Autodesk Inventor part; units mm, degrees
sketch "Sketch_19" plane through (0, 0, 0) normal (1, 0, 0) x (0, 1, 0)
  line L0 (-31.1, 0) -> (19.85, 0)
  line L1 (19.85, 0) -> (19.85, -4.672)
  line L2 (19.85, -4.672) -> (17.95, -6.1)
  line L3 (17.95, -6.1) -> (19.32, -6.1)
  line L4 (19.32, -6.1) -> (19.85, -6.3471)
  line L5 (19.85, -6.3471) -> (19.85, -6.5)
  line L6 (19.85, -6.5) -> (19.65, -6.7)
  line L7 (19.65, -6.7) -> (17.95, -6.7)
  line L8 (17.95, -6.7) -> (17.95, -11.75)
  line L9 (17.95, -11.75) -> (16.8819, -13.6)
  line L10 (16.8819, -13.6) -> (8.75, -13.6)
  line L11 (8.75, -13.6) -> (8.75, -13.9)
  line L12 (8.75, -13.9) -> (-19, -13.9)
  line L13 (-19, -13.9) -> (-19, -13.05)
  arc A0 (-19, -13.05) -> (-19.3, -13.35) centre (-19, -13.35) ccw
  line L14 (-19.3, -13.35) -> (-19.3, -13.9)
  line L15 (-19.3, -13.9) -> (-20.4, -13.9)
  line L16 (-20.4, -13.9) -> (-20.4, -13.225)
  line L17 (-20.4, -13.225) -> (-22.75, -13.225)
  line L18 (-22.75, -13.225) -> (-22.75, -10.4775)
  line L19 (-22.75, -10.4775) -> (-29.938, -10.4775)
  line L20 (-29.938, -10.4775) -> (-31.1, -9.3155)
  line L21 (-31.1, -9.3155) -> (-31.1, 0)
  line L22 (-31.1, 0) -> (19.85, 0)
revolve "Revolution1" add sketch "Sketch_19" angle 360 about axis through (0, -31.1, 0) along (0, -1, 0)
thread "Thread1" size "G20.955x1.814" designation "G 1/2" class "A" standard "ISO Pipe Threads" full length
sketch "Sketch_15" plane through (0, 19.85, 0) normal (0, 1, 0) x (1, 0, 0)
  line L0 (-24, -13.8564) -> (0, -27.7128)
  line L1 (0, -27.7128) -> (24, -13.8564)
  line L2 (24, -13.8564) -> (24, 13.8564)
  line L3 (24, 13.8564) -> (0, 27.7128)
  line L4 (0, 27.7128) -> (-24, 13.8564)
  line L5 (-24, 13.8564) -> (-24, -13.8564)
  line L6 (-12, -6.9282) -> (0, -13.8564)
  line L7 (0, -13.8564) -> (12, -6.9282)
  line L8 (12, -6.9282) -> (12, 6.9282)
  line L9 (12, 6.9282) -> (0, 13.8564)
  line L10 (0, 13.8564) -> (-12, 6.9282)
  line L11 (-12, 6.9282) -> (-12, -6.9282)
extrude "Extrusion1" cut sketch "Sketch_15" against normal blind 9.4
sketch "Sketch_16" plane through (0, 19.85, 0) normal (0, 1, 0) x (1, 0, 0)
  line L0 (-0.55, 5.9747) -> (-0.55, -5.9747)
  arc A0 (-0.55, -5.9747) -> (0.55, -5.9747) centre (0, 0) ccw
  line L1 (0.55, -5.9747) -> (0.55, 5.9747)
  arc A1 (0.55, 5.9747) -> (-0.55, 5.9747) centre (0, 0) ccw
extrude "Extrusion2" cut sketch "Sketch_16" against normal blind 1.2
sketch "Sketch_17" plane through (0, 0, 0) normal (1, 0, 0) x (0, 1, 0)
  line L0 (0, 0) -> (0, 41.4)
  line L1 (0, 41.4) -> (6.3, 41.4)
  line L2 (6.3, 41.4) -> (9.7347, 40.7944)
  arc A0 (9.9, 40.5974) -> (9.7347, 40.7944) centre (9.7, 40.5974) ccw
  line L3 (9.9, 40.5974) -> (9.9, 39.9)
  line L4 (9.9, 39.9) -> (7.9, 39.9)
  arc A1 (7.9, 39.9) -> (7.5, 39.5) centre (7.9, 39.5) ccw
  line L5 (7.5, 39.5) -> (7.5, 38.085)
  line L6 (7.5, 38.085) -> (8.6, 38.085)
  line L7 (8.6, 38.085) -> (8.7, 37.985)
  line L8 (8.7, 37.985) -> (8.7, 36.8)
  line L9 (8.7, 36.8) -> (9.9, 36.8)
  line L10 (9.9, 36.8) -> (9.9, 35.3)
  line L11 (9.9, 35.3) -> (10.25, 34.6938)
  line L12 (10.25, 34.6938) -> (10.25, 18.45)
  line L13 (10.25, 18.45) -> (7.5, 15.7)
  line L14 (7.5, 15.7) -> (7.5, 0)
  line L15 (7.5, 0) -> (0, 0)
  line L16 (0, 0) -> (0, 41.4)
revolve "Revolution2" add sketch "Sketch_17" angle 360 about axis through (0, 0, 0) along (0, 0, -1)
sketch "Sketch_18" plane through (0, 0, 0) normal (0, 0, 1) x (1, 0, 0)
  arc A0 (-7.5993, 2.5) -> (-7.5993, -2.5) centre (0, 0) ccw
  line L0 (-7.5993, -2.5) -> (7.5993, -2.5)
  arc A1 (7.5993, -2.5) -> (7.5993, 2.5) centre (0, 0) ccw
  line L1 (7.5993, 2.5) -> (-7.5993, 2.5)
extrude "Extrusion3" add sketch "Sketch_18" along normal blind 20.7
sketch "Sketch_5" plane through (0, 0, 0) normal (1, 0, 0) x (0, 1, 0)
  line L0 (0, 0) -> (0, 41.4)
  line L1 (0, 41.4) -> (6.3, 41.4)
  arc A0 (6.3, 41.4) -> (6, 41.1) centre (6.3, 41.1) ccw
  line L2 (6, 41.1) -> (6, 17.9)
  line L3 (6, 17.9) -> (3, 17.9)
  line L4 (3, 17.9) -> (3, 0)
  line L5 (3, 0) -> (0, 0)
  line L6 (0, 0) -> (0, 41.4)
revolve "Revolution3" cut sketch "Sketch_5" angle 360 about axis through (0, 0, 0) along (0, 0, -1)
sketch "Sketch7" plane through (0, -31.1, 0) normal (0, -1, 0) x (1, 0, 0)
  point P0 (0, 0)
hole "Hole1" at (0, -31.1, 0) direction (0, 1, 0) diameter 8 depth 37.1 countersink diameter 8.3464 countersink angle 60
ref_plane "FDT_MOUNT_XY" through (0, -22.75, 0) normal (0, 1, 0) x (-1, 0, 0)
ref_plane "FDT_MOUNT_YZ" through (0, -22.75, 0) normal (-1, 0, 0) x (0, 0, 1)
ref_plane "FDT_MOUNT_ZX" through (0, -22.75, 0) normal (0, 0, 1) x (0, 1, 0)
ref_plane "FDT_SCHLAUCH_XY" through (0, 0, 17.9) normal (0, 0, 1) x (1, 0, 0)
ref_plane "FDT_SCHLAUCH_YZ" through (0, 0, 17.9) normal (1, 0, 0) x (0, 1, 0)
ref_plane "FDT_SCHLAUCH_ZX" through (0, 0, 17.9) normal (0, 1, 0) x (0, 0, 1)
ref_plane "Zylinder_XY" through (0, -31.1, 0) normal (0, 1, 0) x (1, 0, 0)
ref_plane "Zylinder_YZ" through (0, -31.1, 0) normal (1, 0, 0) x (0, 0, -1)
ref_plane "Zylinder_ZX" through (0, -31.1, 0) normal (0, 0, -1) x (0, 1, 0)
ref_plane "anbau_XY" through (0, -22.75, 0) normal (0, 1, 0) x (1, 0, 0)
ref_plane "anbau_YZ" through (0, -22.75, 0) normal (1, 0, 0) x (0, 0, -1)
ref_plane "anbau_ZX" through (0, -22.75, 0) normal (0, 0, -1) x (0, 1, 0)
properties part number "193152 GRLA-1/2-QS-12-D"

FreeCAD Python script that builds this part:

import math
import FreeCAD as App
import Part
import Sketcher
from FreeCAD import Vector
Q = App.Units.Quantity

doc = App.newDocument("Part")
body = doc.addObject("PartDesign::Body", "Body")

sketch1 = body.newObject("Sketcher::SketchObject", "Sketch")
sketch1.AttachmentSupport = (doc.getObject("YZ_Plane"), [""])
sketch1.MapMode = "FlatFace"
sketch1.addGeometry([
    Part.LineSegment(Vector(19.85, 0, 0), Vector(-31.1, 0, 0)),
    Part.LineSegment(Vector(-31.1, 0, 0), Vector(-31.1, -9.32, 0)),
    Part.LineSegment(Vector(-31.1, -9.32, 0), Vector(-29.94, -10.48, 0)),
    Part.LineSegment(Vector(-29.94, -10.48, 0), Vector(-22.75, -10.48, 0)),
    Part.LineSegment(Vector(-22.75, -10.48, 0), Vector(-22.75, -13.22, 0)),
    Part.LineSegment(Vector(-22.75, -13.22, 0), Vector(-20.4, -13.22, 0)),
    Part.LineSegment(Vector(-20.4, -13.22, 0), Vector(-20.4, -13.9, 0)),
    Part.LineSegment(Vector(-20.4, -13.9, 0), Vector(-19.3, -13.9, 0)),
    Part.LineSegment(Vector(-19.3, -13.9, 0), Vector(-19.3, -13.35, 0)),
    Part.ArcOfCircle(Part.Circle(Vector(-19, -13.35, 0), Vector(0, 0, 1), 0.3), math.radians(90), math.radians(180)),
    Part.LineSegment(Vector(-19, -13.05, 0), Vector(-19, -13.9, 0)),
    Part.LineSegment(Vector(-19, -13.9, 0), Vector(8.75, -13.9, 0)),
    Part.LineSegment(Vector(8.75, -13.9, 0), Vector(8.75, -13.6, 0)),
    Part.LineSegment(Vector(8.75, -13.6, 0), Vector(16.88, -13.6, 0)),
    Part.LineSegment(Vector(16.88, -13.6, 0), Vector(17.95, -11.75, 0)),
    Part.LineSegment(Vector(17.95, -11.75, 0), Vector(17.95, -6.7, 0)),
    Part.LineSegment(Vector(17.95, -6.7, 0), Vector(19.65, -6.7, 0)),
    Part.LineSegment(Vector(19.65, -6.7, 0), Vector(19.85, -6.5, 0)),
    Part.LineSegment(Vector(19.85, -6.5, 0), Vector(19.85, -6.35, 0)),
    Part.LineSegment(Vector(19.85, -6.35, 0), Vector(19.32, -6.1, 0)),
    Part.LineSegment(Vector(19.32, -6.1, 0), Vector(17.95, -6.1, 0)),
    Part.LineSegment(Vector(17.95, -6.1, 0), Vector(19.85, -4.67, 0)),
    Part.LineSegment(Vector(19.85, -4.67, 0), Vector(19.85, 0, 0)),
], False)
sketch1.addConstraint([
    Sketcher.Constraint("Coincident", 0, 2, 1, 1),
    Sketcher.Constraint("Coincident", 1, 2, 2, 1),
    Sketcher.Constraint("Coincident", 2, 2, 3, 1),
    Sketcher.Constraint("Coincident", 3, 2, 4, 1),
    Sketcher.Constraint("Coincident", 4, 2, 5, 1),
    Sketcher.Constraint("Coincident", 5, 2, 6, 1),
    Sketcher.Constraint("Coincident", 6, 2, 7, 1),
    Sketcher.Constraint("Coincident", 7, 2, 8, 1),
    Sketcher.Constraint("Tangent", 8, 2, 9, 2),
    Sketcher.Constraint("Coincident", 9, 1, 10, 1),
    Sketcher.Constraint("Coincident", 10, 2, 11, 1),
    Sketcher.Constraint("Coincident", 11, 2, 12, 1),
    Sketcher.Constraint("Coincident", 12, 2, 13, 1),
    Sketcher.Constraint("Coincident", 13, 2, 14, 1),
    Sketcher.Constraint("Coincident", 14, 2, 15, 1),
    Sketcher.Constraint("Coincident", 15, 2, 16, 1),
    Sketcher.Constraint("Coincident", 16, 2, 17, 1),
    Sketcher.Constraint("Coincident", 17, 2, 18, 1),
    Sketcher.Constraint("Coincident", 18, 2, 19, 1),
    Sketcher.Constraint("Coincident", 19, 2, 20, 1),
    Sketcher.Constraint("Coincident", 20, 2, 21, 1),
    Sketcher.Constraint("Coincident", 21, 2, 22, 1),
    Sketcher.Constraint("Coincident", 22, 2, 0, 1),
    Sketcher.Constraint("Horizontal", 0),
    Sketcher.Constraint("Vertical", 1),
    Sketcher.Constraint("Horizontal", 3),
    Sketcher.Constraint("Vertical", 4),
    Sketcher.Constraint("Horizontal", 5),
    Sketcher.Constraint("Vertical", 6),
    Sketcher.Constraint("Horizontal", 7),
    Sketcher.Constraint("Vertical", 8),
    Sketcher.Constraint("Vertical", 10),
    Sketcher.Constraint("Horizontal", 11),
    Sketcher.Constraint("Vertical", 12),
    Sketcher.Constraint("Horizontal", 13),
    Sketcher.Constraint("Vertical", 15),
    Sketcher.Constraint("Horizontal", 16),
    Sketcher.Constraint("Vertical", 18),
    Sketcher.Constraint("Horizontal", 20),
    Sketcher.Constraint("Vertical", 22),
    Sketcher.Constraint("PointOnObject", 0, 2, -1),
    Sketcher.Constraint("Perpendicular", 2, 17),
    Sketcher.Constraint("Horizontal", 7, 2, 10, 2),
    Sketcher.Constraint("Vertical", 15, 2, 20, 2),
    Sketcher.Constraint("Vertical", 18, 2, 21, 2),
    Sketcher.Constraint("Radius", 9, Q("0.3 mm")),
    Sketcher.Constraint("Angle", 2, Q("-45 deg")),
    Sketcher.Constraint("Angle", 14, Q("60 deg")),
    Sketcher.Constraint("DistanceX", 7, 1, 7, 2, Q("1.1 mm")),
    Sketcher.Constraint("DistanceX", 16, 1, 16, 2, Q("1.7 mm")),
    Sketcher.Constraint("DistanceY", 12, 1, 12, 2, Q("0.3 mm")),
    Sketcher.Constraint("DistanceX", 9, 3, -1, 1, Q("19 mm")),
    Sketcher.Constraint("DistanceX", 9, 1, -1, 1, Q("19 mm")),
    Sketcher.Constraint("DistanceX", 0, 2, 0, 1, Q("50.95 mm")),
    Sketcher.Constraint("DistanceX", 5, 1, 5, 2, Q("2.35 mm")),
    Sketcher.Constraint("DistanceX", 11, 1, 11, 2, Q("27.75 mm")),
    Sketcher.Constraint("DistanceX", 20, 2, 20, 1, Q("1.37 mm")),
    Sketcher.Constraint("DistanceY", 8, 1, 8, 2, Q("0.55 mm")),
    Sketcher.Constraint("DistanceY", 15, 1, 15, 2, Q("5.05 mm")),
    Sketcher.Constraint("DistanceX", 0, 2, -1, 1, Q("31.1 mm")),
    Sketcher.Constraint("DistanceY", 6, 2, -1, 1, Q("13.9 mm")),
    Sketcher.Constraint("DistanceY", 15, 2, -1, 1, Q("6.7 mm")),
    Sketcher.Constraint("DistanceY", 17, 2, -1, 1, Q("6.5 mm")),
    Sketcher.Constraint("DistanceY", 19, 2, -1, 1, Q("6.1 mm")),
    Sketcher.Constraint("DistanceX", 3, 1, 3, 2, Q("7.188 mm")),
    Sketcher.Constraint("DistanceY", 6, 2, 6, 1, Q("0.675 mm")),
    Sketcher.Constraint("DistanceY", 18, 1, 18, 2, Q("0.153 mm")),
    Sketcher.Constraint("DistanceY", 22, 1, 22, 2, Q("4.672 mm")),
    Sketcher.Constraint("DistanceY", 1, 2, 1, 1, Q("9.3155 mm")),
])
revolution = body.newObject("PartDesign::Revolution", "Revolution")
revolution.Profile = sketch1
revolution.ReferenceAxis = (sketch1, ["H_Axis"])
revolution.Angle = 360

sketch2 = body.newObject("Sketcher::SketchObject", "Sketch001")
sketch2.AttachmentSupport = (doc.getObject("XZ_Plane"), [""])
sketch2.MapMode = "FlatFace"
sketch2.AttachmentOffset = App.Placement(Vector(0, 0, -19.85), App.Rotation())
sketch2.addGeometry([
    Part.LineSegment(Vector(-24, -14, 0), Vector(-24, 14, 0)),
    Part.LineSegment(Vector(-24, 14, 0), Vector(0, 28, 0)),
    Part.LineSegment(Vector(0, 28, 0), Vector(24, 14, 0)),
    Part.LineSegment(Vector(24, 14, 0), Vector(24, -14, 0)),
    Part.LineSegment(Vector(24, -14, 0), Vector(0, -28, 0)),
    Part.LineSegment(Vector(0, -28, 0), Vector(-24, -14, 0)),
    Part.LineSegment(Vector(0, 14, 0), Vector(-12, 7, 0)),
    Part.LineSegment(Vector(-12, 7, 0), Vector(-12, -7, 0)),
    Part.LineSegment(Vector(-12, -7, 0), Vector(0, -14, 0)),
    Part.LineSegment(Vector(0, -14, 0), Vector(12, -7, 0)),
    Part.LineSegment(Vector(12, -7, 0), Vector(12, 7, 0)),
    Part.LineSegment(Vector(12, 7, 0), Vector(0, 14, 0)),
], False)
sketch2.addConstraint([
    Sketcher.Constraint("Coincident", 0, 2, 1, 1),
    Sketcher.Constraint("Coincident", 1, 2, 2, 1),
    Sketcher.Constraint("Coincident", 2, 2, 3, 1),
    Sketcher.Constraint("Coincident", 3, 2, 4, 1),
    Sketcher.Constraint("Coincident", 4, 2, 5, 1),
    Sketcher.Constraint("Coincident", 5, 2, 0, 1),
    Sketcher.Constraint("Coincident", 6, 2, 7, 1),
    Sketcher.Constraint("Coincident", 7, 2, 8, 1),
    Sketcher.Constraint("Coincident", 8, 2, 9, 1),
    Sketcher.Constraint("Coincident", 9, 2, 10, 1),
    Sketcher.Constraint("Coincident", 10, 2, 11, 1),
    Sketcher.Constraint("Coincident", 11, 2, 6, 1),
    Sketcher.Constraint("Vertical", 0),
    Sketcher.Constraint("Vertical", 3),
    Sketcher.Constraint("Vertical", 7),
    Sketcher.Constraint("Vertical", 10),
    Sketcher.Constraint("Symmetric", 0, 2, 3, 2, -1, 1),
    Sketcher.Constraint("Symmetric", 1, 2, 4, 2, -1, 1),
    Sketcher.Constraint("Symmetric", 6, 2, 9, 2, -1, 1),
    Sketcher.Constraint("Symmetric", 8, 2, 11, 2, -1, 1),
    Sketcher.Constraint("PointOnObject", 1, 2, -2),
    Sketcher.Constraint("PointOnObject", 8, 2, -2),
    Sketcher.Constraint("Parallel", 2, 5),
    Sketcher.Constraint("Parallel", 4, 6),
    Sketcher.Constraint("Parallel", 5, 8),
    Sketcher.Constraint("Parallel", 8, 11),
    Sketcher.Constraint("Horizontal", 0, 2, 2, 2),
    Sketcher.Constraint("Horizontal", 5, 2, 8, 2),
    Sketcher.Constraint("Angle", 1, Q("30 deg")),
    Sketcher.Constraint("DistanceX", 0, 2, -1, 1, Q("24 mm")),
    Sketcher.Constraint("DistanceX", 6, 2, -1, 1, Q("12 mm")),
    Sketcher.Constraint("DistanceY", 0, 1, 0, 2, Q("27.7128 mm")),
])
pocket1 = body.newObject("PartDesign::Pocket", "Pocket")
pocket1.Profile = sketch2
pocket1.Length = 9.4
pocket1.Reversed = True

sketch3 = body.newObject("Sketcher::SketchObject", "Sketch002")
sketch3.AttachmentSupport = (doc.getObject("XZ_Plane"), [""])
sketch3.MapMode = "FlatFace"
sketch3.AttachmentOffset = App.Placement(Vector(0, 0, -19.85), App.Rotation())
sketch3.addGeometry([
    Part.ArcOfCircle(Part.Circle(Vector(0, 0, 0), Vector(0, 0, 1), 6), math.radians(-95.26), math.radians(-84.74)),
    Part.LineSegment(Vector(-0.6, -6, 0), Vector(-0.6, 6, 0)),
    Part.ArcOfCircle(Part.Circle(Vector(0, 0, 0), Vector(0, 0, 1), 6), math.radians(84.74), math.radians(95.26)),
    Part.LineSegment(Vector(0.6, 6, 0), Vector(0.6, -6, 0)),
], False)
sketch3.addConstraint([
    Sketcher.Constraint("Coincident", 0, 1, 1, 1),
    Sketcher.Constraint("Coincident", 1, 2, 2, 2),
    Sketcher.Constraint("Coincident", 2, 1, 3, 1),
    Sketcher.Constraint("Coincident", 3, 2, 0, 2),
    Sketcher.Constraint("Vertical", 1),
    Sketcher.Constraint("Vertical", 3),
    Sketcher.Constraint("Coincident", 0, 3, -1, 1),
    Sketcher.Constraint("Coincident", 2, 3, -1, 1),
    Sketcher.Constraint("Equal", 0, 2),
    Sketcher.Constraint("Horizontal", 1, 2, 2, 1),
    Sketcher.Constraint("Radius", 0, Q("6 mm")),
    Sketcher.Constraint("DistanceX", 1, 2, 2, 1, Q("1.1 mm")),
])
pocket2 = body.newObject("PartDesign::Pocket", "Pocket001")
pocket2.Profile = sketch3
pocket2.Length = 1.2
pocket2.Reversed = True

sketch4 = body.newObject("Sketcher::SketchObject", "Sketch003")
sketch4.AttachmentSupport = (doc.getObject("YZ_Plane"), [""])
sketch4.MapMode = "FlatFace"
sketch4.addGeometry([
    Part.LineSegment(Vector(0, 41.4, 0), Vector(0, 0, 0)),
    Part.LineSegment(Vector(0, 0, 0), Vector(7.5, 0, 0)),
    Part.LineSegment(Vector(7.5, 0, 0), Vector(7.5, 15.7, 0)),
    Part.LineSegment(Vector(7.5, 15.7, 0), Vector(10.25, 18.45, 0)),
    Part.LineSegment(Vector(10.25, 18.45, 0), Vector(10.25, 34.69, 0)),
    Part.LineSegment(Vector(10.25, 34.69, 0), Vector(9.9, 35.3, 0)),
    Part.LineSegment(Vector(9.9, 35.3, 0), Vector(9.9, 36.8, 0)),
    Part.LineSegment(Vector(9.9, 36.8, 0), Vector(8.7, 36.8, 0)),
    Part.LineSegment(Vector(8.7, 36.8, 0), Vector(8.7, 37.98, 0)),
    Part.LineSegment(Vector(8.7, 37.98, 0), Vector(8.6, 38.09, 0)),
    Part.LineSegment(Vector(8.6, 38.09, 0), Vector(7.5, 38.09, 0)),
    Part.LineSegment(Vector(7.5, 38.09, 0), Vector(7.5, 39.5, 0)),
    Part.ArcOfCircle(Part.Circle(Vector(7.9, 39.5, 0), Vector(0, 0, 1), 0.4), math.radians(90), math.radians(180)),
    Part.LineSegment(Vector(7.9, 39.9, 0), Vector(9.9, 39.9, 0)),
    Part.LineSegment(Vector(9.9, 39.9, 0), Vector(9.9, 40.6, 0)),
    Part.ArcOfCircle(Part.Circle(Vector(9.7, 40.6, 0), Vector(0, 0, 1), 0.2), math.radians(0), math.radians(80)),
    Part.LineSegment(Vector(9.73, 40.79, 0), Vector(6.3, 41.4, 0)),
    Part.LineSegment(Vector(6.3, 41.4, 0), Vector(0, 41.4, 0)),
], False)
sketch4.addConstraint([
    Sketcher.Constraint("Coincident", 0, 2, 1, 1),
    Sketcher.Constraint("Coincident", 1, 2, 2, 1),
    Sketcher.Constraint("Coincident", 2, 2, 3, 1),
    Sketcher.Constraint("Coincident", 3, 2, 4, 1),
    Sketcher.Constraint("Coincident", 4, 2, 5, 1),
    Sketcher.Constraint("Coincident", 5, 2, 6, 1),
    Sketcher.Constraint("Coincident", 6, 2, 7, 1),
    Sketcher.Constraint("Coincident", 7, 2, 8, 1),
    Sketcher.Constraint("Coincident", 8, 2, 9, 1),
    Sketcher.Constraint("Coincident", 9, 2, 10, 1),
    Sketcher.Constraint("Coincident", 10, 2, 11, 1),
    Sketcher.Constraint("Tangent", 11, 2, 12, 2),
    Sketcher.Constraint("Tangent", 12, 1, 13, 1),
    Sketcher.Constraint("Coincident", 13, 2, 14, 1),
    Sketcher.Constraint("Tangent", 14, 2, 15, 1),
    Sketcher.Constraint("Tangent", 15, 2, 16, 1),
    Sketcher.Constraint("Coincident", 16, 2, 17, 1),
    Sketcher.Constraint("Coincident", 17, 2, 0, 1),
    Sketcher.Constraint("Vertical", 0),
    Sketcher.Constraint("Horizontal", 1),
    Sketcher.Constraint("Vertical", 2),
    Sketcher.Constraint("Vertical", 4),
    Sketcher.Constraint("Vertical", 6),
    Sketcher.Constraint("Horizontal", 7),
    Sketcher.Constraint("Vertical", 8),
    Sketcher.Constraint("Horizontal", 10),
    Sketcher.Constraint("Vertical", 11),
    Sketcher.Constraint("Horizontal", 13),
    Sketcher.Constraint("Vertical", 14),
    Sketcher.Constraint("Horizontal", 17),
    Sketcher.Constraint("Coincident", 0, 2, -1, 1),
    Sketcher.Constraint("Perpendicular", 3, 9),
    Sketcher.Constraint("Vertical", 2, 2, 10, 2),
    Sketcher.Constraint("Vertical", 6, 2, 13, 2),
    Sketcher.Constraint("Radius", 12, Q("0.4 mm")),
    Sketcher.Constraint("Radius", 15, Q("0.2 mm")),
    Sketcher.Constraint("DistanceX", 13, 1, 13, 2, Q("2 mm")),
    Sketcher.Constraint("Angle", 3, Q("45 deg")),
    Sketcher.Constraint("Angle", 5, Q("120.0007 deg")),
    Sketcher.Constraint("Angle", 16, Q("170.0005 deg")),
    Sketcher.Constraint("DistanceX", 1, 1, 1, 2, Q("7.5 mm")),
    Sketcher.Constraint("DistanceX", 7, 2, 7, 1, Q("1.2 mm")),
    Sketcher.Constraint("DistanceX", 10, 2, 10, 1, Q("1.1 mm")),
    Sketcher.Constraint("DistanceX", 17, 2, 17, 1, Q("6.3 mm")),
    Sketcher.Constraint("DistanceY", 0, 2, 0, 1, Q("41.4 mm")),
    Sketcher.Constraint("DistanceY", 2, 1, 2, 2, Q("15.7 mm")),
    Sketcher.Constraint("DistanceY", 6, 1, 6, 2, Q("1.5 mm")),
    Sketcher.Constraint("Distance", 5, Q("0.7 mm")),
    Sketcher.Constraint("DistanceY", -1, 1, 12, 3, Q("39.5 mm")),
    Sketcher.Constraint("DistanceY", -1, 1, 5, 2, Q("35.3 mm")),
    Sketcher.Constraint("DistanceY", 8, 1, 8, 2, Q("1.185 mm")),
])
revolution2 = body.newObject("PartDesign::Revolution", "Revolution001")
revolution2.Profile = sketch4
revolution2.ReferenceAxis = (sketch4, ["V_Axis"])
revolution2.Angle = 360

sketch5 = body.newObject("Sketcher::SketchObject", "Sketch004")
sketch5.AttachmentSupport = (doc.getObject("XY_Plane"), [""])
sketch5.MapMode = "FlatFace"
sketch5.addGeometry([
    Part.LineSegment(Vector(8, 2, 0), Vector(-8, 2, 0)),
    Part.ArcOfCircle(Part.Circle(Vector(0, 0, 0), Vector(0, 0, 1), 8), math.radians(162), math.radians(198)),
    Part.LineSegment(Vector(-8, -2, 0), Vector(8, -2, 0)),
    Part.ArcOfCircle(Part.Circle(Vector(0, 0, 0), Vector(0, 0, 1), 8), math.radians(-18), math.radians(18)),
], False)
sketch5.addConstraint([
    Sketcher.Constraint("Coincident", 0, 2, 1, 1),
    Sketcher.Constraint("Coincident", 1, 2, 2, 1),
    Sketcher.Constraint("Coincident", 2, 2, 3, 1),
    Sketcher.Constraint("Coincident", 3, 2, 0, 1),
    Sketcher.Constraint("Horizontal", 0),
    Sketcher.Constraint("Horizontal", 2),
    Sketcher.Constraint("Coincident", 1, 3, -1, 1),
    Sketcher.Constraint("Coincident", 3, 3, -1, 1),
    Sketcher.Constraint("Equal", 1, 3),
    Sketcher.Constraint("Vertical", 0, 2, 1, 2),
    Sketcher.Constraint("Radius", 1, Q("8 mm")),
    Sketcher.Constraint("DistanceY", 1, 2, 0, 2, Q("5 mm")),
])
pad1 = body.newObject("PartDesign::Pad", "Pad")
pad1.Profile = sketch5
pad1.Length = 20.7

sketch6 = body.newObject("Sketcher::SketchObject", "Sketch005")
sketch6.AttachmentSupport = (doc.getObject("YZ_Plane"), [""])
sketch6.MapMode = "FlatFace"
sketch6.addGeometry([
    Part.LineSegment(Vector(0, 41.4, 0), Vector(0, 0, 0)),
    Part.LineSegment(Vector(0, 0, 0), Vector(3, 0, 0)),
    Part.LineSegment(Vector(3, 0, 0), Vector(3, 17.9, 0)),
    Part.LineSegment(Vector(3, 17.9, 0), Vector(6, 17.9, 0)),
    Part.LineSegment(Vector(6, 17.9, 0), Vector(6, 41.1, 0)),
    Part.ArcOfCircle(Part.Circle(Vector(6.3, 41.1, 0), Vector(0, 0, 1), 0.3), math.radians(90), math.radians(180)),
    Part.LineSegment(Vector(6.3, 41.4, 0), Vector(0, 41.4, 0)),
], False)
sketch6.addConstraint([
    Sketcher.Constraint("Coincident", 0, 2, 1, 1),
    Sketcher.Constraint("Coincident", 1, 2, 2, 1),
    Sketcher.Constraint("Coincident", 2, 2, 3, 1),
    Sketcher.Constraint("Coincident", 3, 2, 4, 1),
    Sketcher.Constraint("Tangent", 4, 2, 5, 2),
    Sketcher.Constraint("Tangent", 5, 1, 6, 1),
    Sketcher.Constraint("Coincident", 6, 2, 0, 1),
    Sketcher.Constraint("Vertical", 0),
    Sketcher.Constraint("Horizontal", 1),
    Sketcher.Constraint("Vertical", 2),
    Sketcher.Constraint("Horizontal", 3),
    Sketcher.Constraint("Vertical", 4),
    Sketcher.Constraint("Horizontal", 6),
    Sketcher.Constraint("Coincident", 0, 2, -1, 1),
    Sketcher.Constraint("Equal", 1, 3),
    Sketcher.Constraint("Radius", 5, Q("0.3 mm")),
    Sketcher.Constraint("DistanceX", 1, 1, 1, 2, Q("3 mm")),
    Sketcher.Constraint("DistanceY", 0, 2, 0, 1, Q("41.4 mm")),
    Sketcher.Constraint("DistanceY", 2, 1, 2, 2, Q("17.9 mm")),
])
groove = body.newObject("PartDesign::Groove", "Groove")
groove.Profile = sketch6
groove.ReferenceAxis = (sketch6, ["V_Axis"])
groove.Angle = 360

sketch7 = body.newObject("Sketcher::SketchObject", "Sketch006")
sketch7.AttachmentSupport = (doc.getObject("XZ_Plane"), [""])
sketch7.MapMode = "FlatFace"
sketch7.AttachmentOffset = App.Placement(Vector(0, 0, 31.1), App.Rotation())
sketch7.addGeometry(Part.Circle(Vector(0, 0, 0), Vector(0, 0, 1), 4), False)
sketch7.addConstraint([
    Sketcher.Constraint("Coincident", 0, 3, -1, 1),
    Sketcher.Constraint("Diameter", 0, Q("8 mm")),
])
doc.recompute()
hole = body.newObject("PartDesign::Hole", "Hole")
hole.Profile = sketch7
hole.ThreadType = "None"
hole.Diameter = 8
hole.DepthType = "Dimension"
hole.Depth = 37.1
hole.DrillPoint = "Flat"
hole.HoleCutType = "Countersink"
hole.HoleCutDiameter = 8.3464
hole.HoleCutCountersinkAngle = 60

doc.recompute()
